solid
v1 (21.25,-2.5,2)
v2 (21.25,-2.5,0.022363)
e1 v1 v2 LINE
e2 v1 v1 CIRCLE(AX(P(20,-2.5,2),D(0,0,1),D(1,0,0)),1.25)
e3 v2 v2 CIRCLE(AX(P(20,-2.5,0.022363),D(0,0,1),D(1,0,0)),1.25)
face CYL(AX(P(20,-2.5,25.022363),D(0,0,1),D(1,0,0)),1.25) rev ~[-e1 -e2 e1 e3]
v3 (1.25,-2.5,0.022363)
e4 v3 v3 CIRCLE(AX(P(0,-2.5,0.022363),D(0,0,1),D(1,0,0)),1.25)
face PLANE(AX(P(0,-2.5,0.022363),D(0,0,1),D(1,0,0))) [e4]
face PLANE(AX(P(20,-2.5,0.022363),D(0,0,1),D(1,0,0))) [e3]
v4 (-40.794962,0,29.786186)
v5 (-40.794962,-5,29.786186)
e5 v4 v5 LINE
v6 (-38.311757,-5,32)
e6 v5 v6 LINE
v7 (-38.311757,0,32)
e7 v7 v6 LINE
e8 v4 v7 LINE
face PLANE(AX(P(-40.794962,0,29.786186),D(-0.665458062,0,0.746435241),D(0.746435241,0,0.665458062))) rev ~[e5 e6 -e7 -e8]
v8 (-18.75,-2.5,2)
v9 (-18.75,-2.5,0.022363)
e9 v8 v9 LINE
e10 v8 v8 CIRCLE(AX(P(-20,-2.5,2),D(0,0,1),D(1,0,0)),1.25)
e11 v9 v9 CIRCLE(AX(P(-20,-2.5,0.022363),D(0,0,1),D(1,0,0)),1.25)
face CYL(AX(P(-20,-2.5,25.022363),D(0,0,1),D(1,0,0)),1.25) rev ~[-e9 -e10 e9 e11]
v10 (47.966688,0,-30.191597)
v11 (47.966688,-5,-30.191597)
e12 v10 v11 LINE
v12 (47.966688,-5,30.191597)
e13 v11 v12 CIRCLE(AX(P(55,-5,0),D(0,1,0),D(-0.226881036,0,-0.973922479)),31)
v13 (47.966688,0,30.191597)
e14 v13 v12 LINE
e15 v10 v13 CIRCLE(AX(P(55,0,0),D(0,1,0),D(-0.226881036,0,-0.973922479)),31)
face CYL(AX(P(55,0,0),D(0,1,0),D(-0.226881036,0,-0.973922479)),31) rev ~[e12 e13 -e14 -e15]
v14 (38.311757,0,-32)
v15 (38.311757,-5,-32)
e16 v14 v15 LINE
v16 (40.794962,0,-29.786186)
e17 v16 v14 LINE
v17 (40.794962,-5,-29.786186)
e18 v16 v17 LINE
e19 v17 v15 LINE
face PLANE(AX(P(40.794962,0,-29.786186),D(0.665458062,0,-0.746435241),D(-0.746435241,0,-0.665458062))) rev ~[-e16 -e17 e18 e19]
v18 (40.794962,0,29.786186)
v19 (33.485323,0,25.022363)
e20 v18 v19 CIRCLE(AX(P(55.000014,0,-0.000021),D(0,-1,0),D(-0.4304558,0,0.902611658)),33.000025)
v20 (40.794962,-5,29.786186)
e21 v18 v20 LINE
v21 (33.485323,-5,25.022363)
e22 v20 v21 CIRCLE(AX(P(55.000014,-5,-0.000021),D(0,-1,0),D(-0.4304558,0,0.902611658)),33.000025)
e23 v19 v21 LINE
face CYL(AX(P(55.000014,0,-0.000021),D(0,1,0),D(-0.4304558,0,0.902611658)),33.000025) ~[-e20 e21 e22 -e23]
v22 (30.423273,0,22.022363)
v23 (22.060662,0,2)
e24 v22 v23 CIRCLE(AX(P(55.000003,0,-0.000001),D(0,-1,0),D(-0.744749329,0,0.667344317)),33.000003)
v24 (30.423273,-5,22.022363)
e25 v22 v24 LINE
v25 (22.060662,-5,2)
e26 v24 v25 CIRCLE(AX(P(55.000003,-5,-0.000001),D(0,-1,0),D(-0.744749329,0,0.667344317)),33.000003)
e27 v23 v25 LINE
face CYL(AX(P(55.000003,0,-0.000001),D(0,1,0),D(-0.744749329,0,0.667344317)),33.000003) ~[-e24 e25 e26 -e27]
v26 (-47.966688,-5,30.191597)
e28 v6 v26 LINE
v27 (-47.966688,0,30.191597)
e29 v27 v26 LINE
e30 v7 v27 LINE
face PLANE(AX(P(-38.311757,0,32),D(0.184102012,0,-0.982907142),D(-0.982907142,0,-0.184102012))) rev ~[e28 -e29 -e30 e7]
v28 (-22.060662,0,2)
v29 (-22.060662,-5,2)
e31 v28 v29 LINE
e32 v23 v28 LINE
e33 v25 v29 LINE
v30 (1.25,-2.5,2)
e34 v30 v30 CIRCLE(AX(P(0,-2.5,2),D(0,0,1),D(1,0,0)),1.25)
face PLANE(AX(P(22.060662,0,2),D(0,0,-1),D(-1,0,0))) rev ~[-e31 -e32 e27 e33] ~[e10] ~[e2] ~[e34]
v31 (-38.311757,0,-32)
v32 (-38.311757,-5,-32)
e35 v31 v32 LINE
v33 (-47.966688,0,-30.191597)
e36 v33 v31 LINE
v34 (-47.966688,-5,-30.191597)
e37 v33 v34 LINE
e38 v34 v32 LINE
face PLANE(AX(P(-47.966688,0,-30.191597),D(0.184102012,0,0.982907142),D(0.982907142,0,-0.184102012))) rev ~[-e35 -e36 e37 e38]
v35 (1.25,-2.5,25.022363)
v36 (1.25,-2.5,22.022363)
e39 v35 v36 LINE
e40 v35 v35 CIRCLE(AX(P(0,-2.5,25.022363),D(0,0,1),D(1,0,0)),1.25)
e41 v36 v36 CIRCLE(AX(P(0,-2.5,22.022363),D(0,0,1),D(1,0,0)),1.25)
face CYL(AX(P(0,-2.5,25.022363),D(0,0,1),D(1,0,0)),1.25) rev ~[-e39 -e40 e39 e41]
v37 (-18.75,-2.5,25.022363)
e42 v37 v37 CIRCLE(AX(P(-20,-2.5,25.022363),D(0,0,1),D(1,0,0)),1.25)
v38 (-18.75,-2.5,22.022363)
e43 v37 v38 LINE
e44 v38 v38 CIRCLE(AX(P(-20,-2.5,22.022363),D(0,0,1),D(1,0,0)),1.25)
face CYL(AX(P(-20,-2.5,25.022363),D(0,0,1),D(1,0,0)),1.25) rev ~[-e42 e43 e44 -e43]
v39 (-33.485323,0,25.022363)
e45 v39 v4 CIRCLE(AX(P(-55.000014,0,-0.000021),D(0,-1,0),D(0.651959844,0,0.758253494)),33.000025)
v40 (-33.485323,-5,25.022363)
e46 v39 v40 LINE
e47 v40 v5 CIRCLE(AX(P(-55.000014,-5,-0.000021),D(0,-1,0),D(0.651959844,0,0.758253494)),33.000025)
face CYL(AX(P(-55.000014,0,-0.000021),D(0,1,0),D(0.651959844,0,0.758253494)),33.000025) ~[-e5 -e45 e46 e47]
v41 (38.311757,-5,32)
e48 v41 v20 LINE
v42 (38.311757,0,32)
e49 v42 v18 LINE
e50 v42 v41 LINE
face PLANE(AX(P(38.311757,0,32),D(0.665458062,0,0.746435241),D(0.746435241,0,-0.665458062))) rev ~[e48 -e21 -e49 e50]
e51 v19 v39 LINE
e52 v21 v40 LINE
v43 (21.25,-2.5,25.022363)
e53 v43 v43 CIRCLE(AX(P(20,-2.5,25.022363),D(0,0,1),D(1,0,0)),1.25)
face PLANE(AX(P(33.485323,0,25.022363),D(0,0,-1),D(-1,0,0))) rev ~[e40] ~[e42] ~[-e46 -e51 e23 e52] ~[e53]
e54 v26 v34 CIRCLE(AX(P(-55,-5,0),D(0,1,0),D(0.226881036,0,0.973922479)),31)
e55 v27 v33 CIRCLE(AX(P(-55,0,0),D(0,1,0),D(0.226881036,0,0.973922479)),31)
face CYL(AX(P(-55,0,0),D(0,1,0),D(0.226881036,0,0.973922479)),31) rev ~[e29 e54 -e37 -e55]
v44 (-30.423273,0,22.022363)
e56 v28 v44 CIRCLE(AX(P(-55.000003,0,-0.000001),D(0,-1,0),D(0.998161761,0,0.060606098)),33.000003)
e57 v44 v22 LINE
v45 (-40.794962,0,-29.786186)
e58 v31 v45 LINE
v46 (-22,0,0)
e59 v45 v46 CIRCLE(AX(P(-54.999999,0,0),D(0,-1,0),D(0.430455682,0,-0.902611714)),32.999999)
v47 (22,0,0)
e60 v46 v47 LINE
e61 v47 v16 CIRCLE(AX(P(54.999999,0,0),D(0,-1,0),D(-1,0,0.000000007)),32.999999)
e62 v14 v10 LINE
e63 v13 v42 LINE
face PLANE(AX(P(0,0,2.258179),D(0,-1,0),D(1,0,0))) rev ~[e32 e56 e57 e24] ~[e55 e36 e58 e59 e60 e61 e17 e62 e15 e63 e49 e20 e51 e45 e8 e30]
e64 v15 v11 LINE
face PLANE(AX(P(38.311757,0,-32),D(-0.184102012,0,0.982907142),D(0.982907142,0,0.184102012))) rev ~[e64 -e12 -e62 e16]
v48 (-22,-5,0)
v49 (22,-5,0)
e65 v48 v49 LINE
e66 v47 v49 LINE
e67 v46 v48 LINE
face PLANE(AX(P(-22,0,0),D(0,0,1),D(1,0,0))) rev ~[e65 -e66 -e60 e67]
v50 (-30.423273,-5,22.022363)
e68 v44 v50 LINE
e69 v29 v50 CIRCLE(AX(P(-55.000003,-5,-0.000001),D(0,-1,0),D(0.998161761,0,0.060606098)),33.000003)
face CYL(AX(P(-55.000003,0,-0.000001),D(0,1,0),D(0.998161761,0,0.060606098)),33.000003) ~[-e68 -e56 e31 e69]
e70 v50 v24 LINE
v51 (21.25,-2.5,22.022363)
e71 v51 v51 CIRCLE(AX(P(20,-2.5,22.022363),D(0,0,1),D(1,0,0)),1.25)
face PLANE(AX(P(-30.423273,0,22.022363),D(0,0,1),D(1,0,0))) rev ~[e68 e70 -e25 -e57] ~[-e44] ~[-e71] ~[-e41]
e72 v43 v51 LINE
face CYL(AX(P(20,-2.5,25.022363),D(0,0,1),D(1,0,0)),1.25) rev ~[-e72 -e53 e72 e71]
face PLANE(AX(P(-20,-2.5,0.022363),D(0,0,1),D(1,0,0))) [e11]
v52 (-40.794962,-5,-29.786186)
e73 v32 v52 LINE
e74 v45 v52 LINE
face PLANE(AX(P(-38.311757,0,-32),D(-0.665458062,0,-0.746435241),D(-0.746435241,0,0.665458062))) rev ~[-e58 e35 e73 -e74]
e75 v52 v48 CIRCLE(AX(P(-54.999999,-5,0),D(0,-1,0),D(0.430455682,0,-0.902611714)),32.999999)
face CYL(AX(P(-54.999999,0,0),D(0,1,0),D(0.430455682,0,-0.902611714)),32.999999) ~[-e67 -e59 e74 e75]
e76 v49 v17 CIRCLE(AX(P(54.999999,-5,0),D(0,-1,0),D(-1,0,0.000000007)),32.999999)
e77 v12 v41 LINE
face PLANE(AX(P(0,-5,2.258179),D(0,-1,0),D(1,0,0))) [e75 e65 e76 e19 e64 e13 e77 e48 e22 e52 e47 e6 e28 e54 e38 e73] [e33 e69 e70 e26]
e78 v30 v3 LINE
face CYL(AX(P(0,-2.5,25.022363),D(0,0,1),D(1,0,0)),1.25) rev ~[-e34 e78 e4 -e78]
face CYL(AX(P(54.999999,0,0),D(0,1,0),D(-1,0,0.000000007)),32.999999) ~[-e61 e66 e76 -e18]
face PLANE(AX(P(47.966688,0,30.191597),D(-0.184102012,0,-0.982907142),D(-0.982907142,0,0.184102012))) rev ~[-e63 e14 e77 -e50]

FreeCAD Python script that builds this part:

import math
import FreeCAD as App
import Part
import Sketcher

V = App.Vector

doc = App.newDocument("Part")
params = doc.addObject("Spreadsheet::Sheet", "Params")
for row, (alias, value) in enumerate([
    ("sketch1_radius", "31 mm"),
    ("sketch1_radius2", "32.999999 mm"),
    ("sketch1_width", "44 mm"),
    ("pad1_length", "5 mm"),
    ("sketch2_diameter", "2.5 mm"),
    ("pocket1_length", "25 mm"),
], start=1):
    params.set(f"A{row}", alias)
    params.set(f"B{row}", "=" + value)
    params.setAlias(f"B{row}", alias)

body = doc.addObject("PartDesign::Body", "Body")

sketch1 = body.newObject("Sketcher::SketchObject", "Sketch")
sketch1.AttachmentSupport = (doc.getObject("XZ_Plane"), [""])
sketch1.MapMode = "FlatFace"
sketch1.addGeometry(Part.ArcOfCircle(Part.Circle(V(-55, 0, 0), V(0, 0, 1), 31), math.radians(-77), math.radians(77)), False)
sketch1.addGeometry(Part.LineSegment(V(-48, -30.2, 0), V(-38.3, -32, 0)), False)
sketch1.addGeometry(Part.LineSegment(V(-38.3, -32, 0), V(-40.8, -29.8, 0)), False)
sketch1.addGeometry(Part.ArcOfCircle(Part.Circle(V(-55, 0, 0), V(0, 0, 1), 33), math.radians(-65), math.radians(0)), False)
sketch1.addGeometry(Part.LineSegment(V(-22, 0, 0), V(22, 0, 0)), False)
sketch1.addGeometry(Part.ArcOfCircle(Part.Circle(V(55, 0, 0), V(0, 0, 1), 33), math.radians(180), math.radians(245)), False)
sketch1.addGeometry(Part.LineSegment(V(40.8, -29.8, 0), V(38.3, -32, 0)), False)
sketch1.addGeometry(Part.LineSegment(V(38.3, -32, 0), V(48, -30.2, 0)), False)
sketch1.addGeometry(Part.ArcOfCircle(Part.Circle(V(55, 0, 0), V(0, 0, 1), 31), math.radians(103), math.radians(257)), False)
sketch1.addGeometry(Part.LineSegment(V(48, 30.2, 0), V(38.3, 32, 0)), False)
sketch1.addGeometry(Part.LineSegment(V(38.3, 32, 0), V(40.8, 29.8, 0)), False)
sketch1.addGeometry(Part.ArcOfCircle(Part.Circle(V(55, 0, 0), V(0, 0, 1), 33), math.radians(115.5), math.radians(130.69)), False)
sketch1.addGeometry(Part.LineSegment(V(33.5, 25, 0), V(-33.5, 25, 0)), False)
sketch1.addGeometry(Part.ArcOfCircle(Part.Circle(V(-55, 0, 0), V(0, 0, 1), 33), math.radians(49.31), math.radians(64.5)), False)
sketch1.addGeometry(Part.LineSegment(V(-40.8, 29.8, 0), V(-38.3, 32, 0)), False)
sketch1.addGeometry(Part.LineSegment(V(-38.3, 32, 0), V(-48, 30.2, 0)), False)
sketch1.addGeometry(Part.ArcOfCircle(Part.Circle(V(-55, 0, 0), V(0, 0, 1), 33), math.radians(3), math.radians(42)), False)
sketch1.addGeometry(Part.LineSegment(V(-30.4, 22, 0), V(30.4, 22, 0)), False)
sketch1.addGeometry(Part.ArcOfCircle(Part.Circle(V(55, 0, 0), V(0, 0, 1), 33), math.radians(138), math.radians(177)), False)
sketch1.addGeometry(Part.LineSegment(V(22.1, 2, 0), V(-22.1, 2, 0)), False)
sketch1.addConstraint(Sketcher.Constraint("Coincident", 0, 1, 1, 1))
sketch1.addConstraint(Sketcher.Constraint("Coincident", 1, 2, 2, 1))
sketch1.addConstraint(Sketcher.Constraint("Coincident", 2, 2, 3, 1))
sketch1.addConstraint(Sketcher.Constraint("Coincident", 3, 2, 4, 1))
sketch1.addConstraint(Sketcher.Constraint("Coincident", 4, 2, 5, 1))
sketch1.addConstraint(Sketcher.Constraint("Coincident", 5, 2, 6, 1))
sketch1.addConstraint(Sketcher.Constraint("Coincident", 6, 2, 7, 1))
sketch1.addConstraint(Sketcher.Constraint("Coincident", 7, 2, 8, 2))
sketch1.addConstraint(Sketcher.Constraint("Coincident", 8, 1, 9, 1))
sketch1.addConstraint(Sketcher.Constraint("Coincident", 9, 2, 10, 1))
sketch1.addConstraint(Sketcher.Constraint("Coincident", 10, 2, 11, 1))
sketch1.addConstraint(Sketcher.Constraint("Coincident", 11, 2, 12, 1))
sketch1.addConstraint(Sketcher.Constraint("Coincident", 12, 2, 13, 1))
sketch1.addConstraint(Sketcher.Constraint("Coincident", 13, 2, 14, 1))
sketch1.addConstraint(Sketcher.Constraint("Coincident", 14, 2, 15, 1))
sketch1.addConstraint(Sketcher.Constraint("Coincident", 15, 2, 0, 2))
sketch1.addConstraint(Sketcher.Constraint("Coincident", 16, 2, 17, 1))
sketch1.addConstraint(Sketcher.Constraint("Coincident", 17, 2, 18, 1))
sketch1.addConstraint(Sketcher.Constraint("Coincident", 18, 2, 19, 1))
sketch1.addConstraint(Sketcher.Constraint("Coincident", 19, 2, 16, 1))
sketch1.addConstraint(Sketcher.Constraint("Horizontal", 4))
sketch1.addConstraint(Sketcher.Constraint("Horizontal", 12))
sketch1.addConstraint(Sketcher.Constraint("Horizontal", 17))
sketch1.addConstraint(Sketcher.Constraint("Horizontal", 19))
sketch1.addConstraint(Sketcher.Constraint("Coincident", 3, 3, 0, 3))
sketch1.addConstraint(Sketcher.Constraint("Coincident", 8, 3, 5, 3))
sketch1.addConstraint(Sketcher.Constraint("Coincident", 16, 3, 0, 3))
sketch1.addConstraint(Sketcher.Constraint("Coincident", 18, 3, 5, 3))
sketch1.addConstraint(Sketcher.Constraint("Equal", 3, 5))
sketch1.addConstraint(Sketcher.Constraint("Equal", 0, 8))
sketch1.addConstraint(Sketcher.Constraint("Equal", 11, 13))
sketch1.addConstraint(Sketcher.Constraint("Equal", 16, 18))
sketch1.addConstraint(Sketcher.Constraint("Symmetric", 0, 3, 5, 3, -1, 1))
sketch1.addConstraint(Sketcher.Constraint("Symmetric", 1, 2, 9, 2, -1, 1))
sketch1.addConstraint(Sketcher.Constraint("Symmetric", 2, 2, 10, 2, -1, 1))
sketch1.addConstraint(Sketcher.Constraint("Symmetric", 5, 2, 13, 2, -1, 1))
sketch1.addConstraint(Sketcher.Constraint("Symmetric", 6, 2, 14, 2, -1, 1))
sketch1.addConstraint(Sketcher.Constraint("Symmetric", 11, 3, 13, 3, -2))
sketch1.addConstraint(Sketcher.Constraint("Symmetric", 1, 2, 6, 2, -2))
sketch1.addConstraint(Sketcher.Constraint("PointOnObject", 3, 2, -1))
sketch1.addConstraint(Sketcher.Constraint("Parallel", 1, 9))
sketch1.addConstraint(Sketcher.Constraint("Parallel", 7, 15))
sketch1.addConstraint(Sketcher.Constraint("Horizontal", 2, 2, 5, 2))
sketch1.addConstraint(Sketcher.Constraint("Horizontal", 0, 1, 7, 2))
sketch1.addConstraint(Sketcher.Constraint("Radius", 0, 31.0))
sketch1.addConstraint(Sketcher.Constraint("Radius", 3, 32.999999))
sketch1.addConstraint(Sketcher.Constraint("DistanceX", 4, 1, 4, 2, 44.0))
sketch1.addConstraint(Sketcher.Constraint("DistanceY", 1, 2, -1, 1, 32.0))
sketch1.addConstraint(Sketcher.Constraint("DistanceY", -1, 1, 18, 2, 2.0))
sketch1.addConstraint(Sketcher.Constraint("DistanceY", 16, 2, 12, 2, 3.0))
sketch1.addConstraint(Sketcher.Constraint("Radius", 11, 33.000025))
sketch1.addConstraint(Sketcher.Constraint("Radius", 16, 33.000003))
sketch1.addConstraint(Sketcher.Constraint("DistanceY", 18, 3, 8, 1, 30.191598))
sketch1.addConstraint(Sketcher.Constraint("Distance", 1, 9.822831))
sketch1.addConstraint(Sketcher.Constraint("DistanceX", 12, 2, 12, 1, 66.970646))
sketch1.addConstraint(Sketcher.Constraint("DistanceX", 17, 1, 17, 2, 60.846546))
sketch1.addConstraint(Sketcher.Constraint("DistanceX", 2, 2, -1, 1, 40.794962))
sketch1.setExpression("Constraints[44]", "Params.sketch1_radius")
sketch1.setExpression("Constraints[45]", "Params.sketch1_radius2")
sketch1.setExpression("Constraints[46]", "Params.sketch1_width")
pad1 = body.newObject("PartDesign::Pad", "Pad")
pad1.Profile = sketch1
pad1.setExpression("Length", "Params.pad1_length")

sketch2 = body.newObject("Sketcher::SketchObject", "Sketch001")
sketch2.AttachmentSupport = (doc.getObject("XY_Plane"), [""])
sketch2.MapMode = "FlatFace"
sketch2.AttachmentOffset = App.Placement(V(0, 0, 25.022363), App.Rotation())
sketch2.addGeometry(Part.Circle(V(-20, -2.5, 0), V(0, 0, 1), 1.2), False)
sketch2.addGeometry(Part.Circle(V(0, -2.5, 0), V(0, 0, 1), 1.2), False)
sketch2.addGeometry(Part.Circle(V(20, -2.5, 0), V(0, 0, 1), 1.2), False)
sketch2.addConstraint(Sketcher.Constraint("Equal", 0, 1))
sketch2.addConstraint(Sketcher.Constraint("Equal", 1, 2))
sketch2.addConstraint(Sketcher.Constraint("Symmetric", 0, 3, 2, 3, -2))
sketch2.addConstraint(Sketcher.Constraint("PointOnObject", 1, 3, -2))
sketch2.addConstraint(Sketcher.Constraint("Horizontal", 0, 3, 1, 3))
sketch2.addConstraint(Sketcher.Constraint("Diameter", 0, 2.5))
sketch2.addConstraint(Sketcher.Constraint("DistanceX", 0, 3, -1, 1, 20.0))
sketch2.addConstraint(Sketcher.Constraint("DistanceY", 0, 3, -1, 1, 2.5))
sketch2.setExpression("Constraints[5]", "Params.sketch2_diameter")
pocket1 = body.newObject("PartDesign::Pocket", "Pocket")
pocket1.Profile = sketch2
pocket1.setExpression("Length", "Params.pocket1_length")

doc.recompute()
